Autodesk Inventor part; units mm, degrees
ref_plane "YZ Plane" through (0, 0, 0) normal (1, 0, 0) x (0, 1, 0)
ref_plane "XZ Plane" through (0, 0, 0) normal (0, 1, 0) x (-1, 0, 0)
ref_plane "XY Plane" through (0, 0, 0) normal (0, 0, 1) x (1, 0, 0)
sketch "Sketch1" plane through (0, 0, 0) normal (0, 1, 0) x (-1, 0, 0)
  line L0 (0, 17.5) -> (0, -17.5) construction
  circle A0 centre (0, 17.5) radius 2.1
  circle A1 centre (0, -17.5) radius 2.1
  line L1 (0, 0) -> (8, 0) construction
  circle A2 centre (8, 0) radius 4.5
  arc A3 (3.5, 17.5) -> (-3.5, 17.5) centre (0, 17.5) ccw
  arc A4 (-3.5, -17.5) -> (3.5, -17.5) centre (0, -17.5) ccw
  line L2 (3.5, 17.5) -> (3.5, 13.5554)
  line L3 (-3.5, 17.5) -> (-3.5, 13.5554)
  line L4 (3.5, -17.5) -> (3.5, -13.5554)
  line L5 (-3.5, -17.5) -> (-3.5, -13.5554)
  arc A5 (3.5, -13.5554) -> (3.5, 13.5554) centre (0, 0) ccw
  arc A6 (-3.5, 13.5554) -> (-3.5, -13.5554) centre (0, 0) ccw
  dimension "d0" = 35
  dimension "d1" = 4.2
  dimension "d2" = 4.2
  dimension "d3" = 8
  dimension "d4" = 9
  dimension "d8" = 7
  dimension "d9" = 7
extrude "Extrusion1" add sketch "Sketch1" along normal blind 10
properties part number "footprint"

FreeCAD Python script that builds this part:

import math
import FreeCAD as App
import Part
import Sketcher

V = App.Vector
Q = App.Units.Quantity

doc = App.newDocument("Part")
body = doc.addObject("PartDesign::Body", "Body")

# Sketch on XZ plane
sketch1 = body.newObject("Sketcher::SketchObject", "Sketch")
sketch1.AttachmentSupport = (doc.getObject("XZ_Plane"), [""])
sketch1.MapMode = "FlatFace"
sketch1.addGeometry(Part.LineSegment(V(-3.5, 13.6, 0), V(-3.5, 17.5, 0)), False)
sketch1.addGeometry(Part.ArcOfCircle(Part.Circle(V(0, 17.5, 0), V(0, 0, 1), 3.5), math.radians(0), math.radians(180)), False)
sketch1.addGeometry(Part.LineSegment(V(3.5, 17.5, 0), V(3.5, 13.6, 0)), False)
sketch1.addGeometry(Part.ArcOfCircle(Part.Circle(V(0, 0, 0), V(0, 0, 1), 14), math.radians(-76), math.radians(76)), False)
sketch1.addGeometry(Part.LineSegment(V(3.5, -13.6, 0), V(3.5, -17.5, 0)), False)
sketch1.addGeometry(Part.ArcOfCircle(Part.Circle(V(0, -17.5, 0), V(0, 0, 1), 3.5), math.radians(180), math.radians(360)), False)
sketch1.addGeometry(Part.LineSegment(V(-3.5, -17.5, 0), V(-3.5, -13.6, 0)), False)
sketch1.addGeometry(Part.ArcOfCircle(Part.Circle(V(0, 0, 0), V(0, 0, 1), 14), math.radians(104), math.radians(256)), False)
sketch1.addGeometry(Part.Circle(V(0, -17.5, 0), V(0, 0, 1), 2.1), False)
sketch1.addGeometry(Part.Circle(V(-8, 0, 0), V(0, 0, 1), 4.5), False)
sketch1.addGeometry(Part.Circle(V(0, 17.5, 0), V(0, 0, 1), 2.1), False)
sketch1.addConstraint(Sketcher.Constraint("Tangent", 0, 2, 1, 2))
sketch1.addConstraint(Sketcher.Constraint("Tangent", 1, 1, 2, 1))
sketch1.addConstraint(Sketcher.Constraint("Coincident", 2, 2, 3, 2))
sketch1.addConstraint(Sketcher.Constraint("Coincident", 3, 1, 4, 1))
sketch1.addConstraint(Sketcher.Constraint("Tangent", 4, 2, 5, 2))
sketch1.addConstraint(Sketcher.Constraint("Tangent", 5, 1, 6, 1))
sketch1.addConstraint(Sketcher.Constraint("Coincident", 6, 2, 7, 2))
sketch1.addConstraint(Sketcher.Constraint("Coincident", 7, 1, 0, 1))
sketch1.addConstraint(Sketcher.Constraint("Vertical", 0))
sketch1.addConstraint(Sketcher.Constraint("Vertical", 2))
sketch1.addConstraint(Sketcher.Constraint("Vertical", 4))
sketch1.addConstraint(Sketcher.Constraint("Vertical", 6))
sketch1.addConstraint(Sketcher.Constraint("Coincident", 3, 3, -1, 1))
sketch1.addConstraint(Sketcher.Constraint("Coincident", 7, 3, -1, 1))
sketch1.addConstraint(Sketcher.Constraint("Coincident", 8, 3, 5, 3))
sketch1.addConstraint(Sketcher.Constraint("Coincident", 10, 3, 1, 3))
sketch1.addConstraint(Sketcher.Constraint("Equal", 1, 5))
sketch1.addConstraint(Sketcher.Constraint("Equal", 3, 7))
sketch1.addConstraint(Sketcher.Constraint("Equal", 8, 10))
sketch1.addConstraint(Sketcher.Constraint("Symmetric", 1, 3, 5, 3, -1, 1))
sketch1.addConstraint(Sketcher.Constraint("PointOnObject", 1, 3, -2))
sketch1.addConstraint(Sketcher.Constraint("PointOnObject", 9, 3, -1))
sketch1.addConstraint(Sketcher.Constraint("Diameter", 9, Q("9 mm")))
sketch1.addConstraint(Sketcher.Constraint("Diameter", 8, Q("4.2 mm")))
sketch1.addConstraint(Sketcher.Constraint("Radius", 1, Q("3.5 mm")))
sketch1.addConstraint(Sketcher.Constraint("DistanceX", 9, 3, -1, 1, Q("8 mm")))
sketch1.addConstraint(Sketcher.Constraint("Radius", 3, Q("14 mm")))
sketch1.addConstraint(Sketcher.Constraint("DistanceY", 5, 3, 1, 3, Q("35 mm")))
pad1 = body.newObject("PartDesign::Pad", "Pad")
pad1.Profile = sketch1
pad1.Length = 10
pad1.Reversed = True

doc.recompute()
